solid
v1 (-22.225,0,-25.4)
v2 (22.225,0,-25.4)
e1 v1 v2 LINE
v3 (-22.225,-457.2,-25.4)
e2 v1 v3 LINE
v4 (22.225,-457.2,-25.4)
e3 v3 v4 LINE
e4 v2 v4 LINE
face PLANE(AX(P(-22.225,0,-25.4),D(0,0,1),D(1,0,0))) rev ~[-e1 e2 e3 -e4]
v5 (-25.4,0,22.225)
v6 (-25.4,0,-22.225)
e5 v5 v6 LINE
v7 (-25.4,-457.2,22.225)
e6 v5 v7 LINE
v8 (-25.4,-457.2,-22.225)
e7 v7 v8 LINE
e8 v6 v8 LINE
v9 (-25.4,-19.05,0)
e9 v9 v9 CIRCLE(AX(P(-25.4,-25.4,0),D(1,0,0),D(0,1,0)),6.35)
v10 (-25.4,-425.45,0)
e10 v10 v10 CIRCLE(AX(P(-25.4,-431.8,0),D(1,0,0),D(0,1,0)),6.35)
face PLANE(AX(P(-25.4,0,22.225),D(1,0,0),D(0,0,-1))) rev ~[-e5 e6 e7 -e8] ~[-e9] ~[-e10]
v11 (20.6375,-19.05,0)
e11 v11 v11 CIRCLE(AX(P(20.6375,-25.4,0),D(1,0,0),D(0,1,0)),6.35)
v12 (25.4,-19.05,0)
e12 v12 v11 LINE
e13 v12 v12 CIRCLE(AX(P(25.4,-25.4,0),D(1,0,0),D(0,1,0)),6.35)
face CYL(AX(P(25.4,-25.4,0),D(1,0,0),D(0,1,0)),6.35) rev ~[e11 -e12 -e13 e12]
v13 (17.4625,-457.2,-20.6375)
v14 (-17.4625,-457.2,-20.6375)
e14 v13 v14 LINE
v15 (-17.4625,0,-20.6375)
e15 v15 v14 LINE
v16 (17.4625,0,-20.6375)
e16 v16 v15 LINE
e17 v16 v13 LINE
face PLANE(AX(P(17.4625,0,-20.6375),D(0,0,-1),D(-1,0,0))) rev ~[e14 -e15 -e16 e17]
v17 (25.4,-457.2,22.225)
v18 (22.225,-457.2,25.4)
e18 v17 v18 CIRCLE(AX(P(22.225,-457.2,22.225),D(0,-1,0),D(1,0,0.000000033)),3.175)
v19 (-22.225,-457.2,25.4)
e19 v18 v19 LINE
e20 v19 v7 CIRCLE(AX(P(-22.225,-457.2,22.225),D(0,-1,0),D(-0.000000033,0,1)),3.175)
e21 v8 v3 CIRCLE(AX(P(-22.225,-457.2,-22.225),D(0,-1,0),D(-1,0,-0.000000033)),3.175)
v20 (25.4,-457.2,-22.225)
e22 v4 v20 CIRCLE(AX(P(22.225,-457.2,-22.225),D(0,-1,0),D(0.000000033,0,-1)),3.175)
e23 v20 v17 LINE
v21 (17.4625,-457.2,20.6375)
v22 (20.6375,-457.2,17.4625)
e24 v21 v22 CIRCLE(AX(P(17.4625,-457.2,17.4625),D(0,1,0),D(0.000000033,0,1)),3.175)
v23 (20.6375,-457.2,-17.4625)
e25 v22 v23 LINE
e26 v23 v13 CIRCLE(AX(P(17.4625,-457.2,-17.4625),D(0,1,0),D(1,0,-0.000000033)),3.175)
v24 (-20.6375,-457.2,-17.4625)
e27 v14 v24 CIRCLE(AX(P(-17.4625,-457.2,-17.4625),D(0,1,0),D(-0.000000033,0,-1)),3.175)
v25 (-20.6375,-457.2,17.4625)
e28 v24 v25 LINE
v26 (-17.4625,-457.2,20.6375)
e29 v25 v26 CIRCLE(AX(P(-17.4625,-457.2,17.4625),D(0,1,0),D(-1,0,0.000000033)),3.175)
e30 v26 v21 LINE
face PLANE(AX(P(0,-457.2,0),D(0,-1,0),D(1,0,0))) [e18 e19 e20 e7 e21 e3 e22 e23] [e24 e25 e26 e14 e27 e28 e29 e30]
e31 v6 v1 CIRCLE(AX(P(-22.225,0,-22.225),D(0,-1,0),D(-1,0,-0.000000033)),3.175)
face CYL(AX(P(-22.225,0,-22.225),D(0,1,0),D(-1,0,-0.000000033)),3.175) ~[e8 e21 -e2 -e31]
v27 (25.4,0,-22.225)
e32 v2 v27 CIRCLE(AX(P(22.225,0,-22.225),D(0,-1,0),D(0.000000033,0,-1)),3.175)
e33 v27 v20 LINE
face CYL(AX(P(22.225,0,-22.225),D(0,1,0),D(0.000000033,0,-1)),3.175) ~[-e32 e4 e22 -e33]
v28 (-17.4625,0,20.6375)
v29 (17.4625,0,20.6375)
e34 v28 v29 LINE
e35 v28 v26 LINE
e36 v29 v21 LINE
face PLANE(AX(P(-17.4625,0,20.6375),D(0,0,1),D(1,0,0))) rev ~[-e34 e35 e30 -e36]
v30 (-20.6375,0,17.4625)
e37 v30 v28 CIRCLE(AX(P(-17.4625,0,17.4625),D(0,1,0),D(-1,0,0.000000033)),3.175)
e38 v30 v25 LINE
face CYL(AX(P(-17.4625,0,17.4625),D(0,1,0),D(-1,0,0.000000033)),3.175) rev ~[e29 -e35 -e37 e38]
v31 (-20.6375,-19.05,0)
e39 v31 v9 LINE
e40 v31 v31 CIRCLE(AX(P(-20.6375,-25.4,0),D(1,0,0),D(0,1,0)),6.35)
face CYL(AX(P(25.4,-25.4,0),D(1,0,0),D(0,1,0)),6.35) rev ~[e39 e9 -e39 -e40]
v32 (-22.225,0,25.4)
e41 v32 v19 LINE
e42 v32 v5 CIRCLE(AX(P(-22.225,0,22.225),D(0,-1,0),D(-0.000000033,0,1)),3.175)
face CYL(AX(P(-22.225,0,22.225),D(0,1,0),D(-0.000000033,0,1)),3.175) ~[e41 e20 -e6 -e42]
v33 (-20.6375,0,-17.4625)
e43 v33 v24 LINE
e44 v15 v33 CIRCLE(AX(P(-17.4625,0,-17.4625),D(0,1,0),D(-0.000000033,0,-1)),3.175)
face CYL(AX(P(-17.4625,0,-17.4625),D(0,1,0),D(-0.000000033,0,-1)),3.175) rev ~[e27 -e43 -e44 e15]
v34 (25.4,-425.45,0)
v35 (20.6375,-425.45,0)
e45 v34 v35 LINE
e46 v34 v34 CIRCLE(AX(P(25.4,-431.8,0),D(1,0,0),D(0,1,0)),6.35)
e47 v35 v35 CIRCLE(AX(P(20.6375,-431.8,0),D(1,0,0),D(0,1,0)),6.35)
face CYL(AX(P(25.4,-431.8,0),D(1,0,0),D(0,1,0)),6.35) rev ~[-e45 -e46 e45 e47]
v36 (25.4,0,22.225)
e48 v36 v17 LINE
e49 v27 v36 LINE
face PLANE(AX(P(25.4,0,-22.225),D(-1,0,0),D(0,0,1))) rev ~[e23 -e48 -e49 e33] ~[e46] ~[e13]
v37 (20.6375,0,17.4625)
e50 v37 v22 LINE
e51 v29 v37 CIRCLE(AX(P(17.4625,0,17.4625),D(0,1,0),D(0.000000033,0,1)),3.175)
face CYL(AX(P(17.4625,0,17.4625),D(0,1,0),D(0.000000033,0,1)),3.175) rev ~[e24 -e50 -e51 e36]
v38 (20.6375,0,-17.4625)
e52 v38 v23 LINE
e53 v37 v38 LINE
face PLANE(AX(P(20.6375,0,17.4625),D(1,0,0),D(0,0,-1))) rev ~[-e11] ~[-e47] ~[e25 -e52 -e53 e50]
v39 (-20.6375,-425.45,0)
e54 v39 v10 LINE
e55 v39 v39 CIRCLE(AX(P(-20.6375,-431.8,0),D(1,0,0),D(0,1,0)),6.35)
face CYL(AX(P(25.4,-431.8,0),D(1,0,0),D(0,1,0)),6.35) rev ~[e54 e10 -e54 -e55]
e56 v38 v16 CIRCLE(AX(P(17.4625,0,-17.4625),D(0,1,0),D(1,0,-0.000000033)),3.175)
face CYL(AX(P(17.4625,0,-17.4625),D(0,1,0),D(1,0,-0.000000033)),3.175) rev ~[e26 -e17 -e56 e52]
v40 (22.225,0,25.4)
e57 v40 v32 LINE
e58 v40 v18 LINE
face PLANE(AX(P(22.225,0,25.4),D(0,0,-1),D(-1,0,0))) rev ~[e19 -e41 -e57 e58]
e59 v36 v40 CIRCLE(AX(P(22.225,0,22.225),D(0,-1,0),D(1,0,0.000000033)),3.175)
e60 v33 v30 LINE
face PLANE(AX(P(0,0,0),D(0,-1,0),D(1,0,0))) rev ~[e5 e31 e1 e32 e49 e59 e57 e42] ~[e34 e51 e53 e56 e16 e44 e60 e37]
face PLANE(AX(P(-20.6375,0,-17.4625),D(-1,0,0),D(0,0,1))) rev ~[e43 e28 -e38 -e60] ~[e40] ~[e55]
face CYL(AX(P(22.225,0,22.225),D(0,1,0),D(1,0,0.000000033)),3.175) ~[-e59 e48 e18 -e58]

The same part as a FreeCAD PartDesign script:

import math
import FreeCAD as App
import Part
import Sketcher

V = App.Vector
Q = App.Units.Quantity

doc = App.newDocument("Part")
body = doc.addObject("PartDesign::Body", "Body")

# Sketch on XZ plane
sketch1 = body.newObject("Sketcher::SketchObject", "Sketch")
sketch1.AttachmentSupport = (doc.getObject("XZ_Plane"), [""])
sketch1.MapMode = "FlatFace"
sketch1.addGeometry([
    Part.ArcOfCircle(Part.Circle(V(22.2, 22.2, 0), V(0, 0, 1), 3.2), math.radians(0), math.radians(90)),  # 0
    Part.LineSegment(V(22.2, 25.4, 0), V(-22.2, 25.4, 0)),  # 1
    Part.ArcOfCircle(Part.Circle(V(-22.2, 22.2, 0), V(0, 0, 1), 3.2), math.radians(90), math.radians(180)),  # 2
    Part.LineSegment(V(-25.4, 22.2, 0), V(-25.4, -22.2, 0)),  # 3
    Part.ArcOfCircle(Part.Circle(V(-22.2, -22.2, 0), V(0, 0, 1), 3.2), math.radians(-180), math.radians(-90)),  # 4
    Part.LineSegment(V(-22.2, -25.4, 0), V(22.2, -25.4, 0)),  # 5
    Part.ArcOfCircle(Part.Circle(V(22.2, -22.2, 0), V(0, 0, 1), 3.2), math.radians(-90), math.radians(0)),  # 6
    Part.LineSegment(V(25.4, -22.2, 0), V(25.4, 22.2, 0)),  # 7
    Part.ArcOfCircle(Part.Circle(V(-17.5, 17.5, 0), V(0, 0, 1), 3.2), math.radians(90), math.radians(180)),  # 8
    Part.LineSegment(V(-17.5, 20.6, 0), V(17.5, 20.6, 0)),  # 9
    Part.ArcOfCircle(Part.Circle(V(17.5, 17.5, 0), V(0, 0, 1), 3.2), math.radians(0), math.radians(90)),  # 10
    Part.LineSegment(V(20.6, 17.5, 0), V(20.6, -17.5, 0)),  # 11
    Part.ArcOfCircle(Part.Circle(V(17.5, -17.5, 0), V(0, 0, 1), 3.2), math.radians(-90), math.radians(0)),  # 12
    Part.LineSegment(V(17.5, -20.6, 0), V(-17.5, -20.6, 0)),  # 13
    Part.ArcOfCircle(Part.Circle(V(-17.5, -17.5, 0), V(0, 0, 1), 3.2), math.radians(-180), math.radians(-90)),  # 14
    Part.LineSegment(V(-20.6, -17.5, 0), V(-20.6, 17.5, 0)),  # 15
], False)
sketch1.addConstraint([
    Sketcher.Constraint("Tangent", 0, 2, 1, 1),
    Sketcher.Constraint("Tangent", 1, 2, 2, 1),
    Sketcher.Constraint("Tangent", 2, 2, 3, 1),
    Sketcher.Constraint("Tangent", 3, 2, 4, 1),
    Sketcher.Constraint("Tangent", 4, 2, 5, 1),
    Sketcher.Constraint("Tangent", 5, 2, 6, 1),
    Sketcher.Constraint("Tangent", 6, 2, 7, 1),
    Sketcher.Constraint("Tangent", 7, 2, 0, 1),
    Sketcher.Constraint("Tangent", 8, 1, 9, 1),
    Sketcher.Constraint("Tangent", 9, 2, 10, 2),
    Sketcher.Constraint("Tangent", 10, 1, 11, 1),
    Sketcher.Constraint("Tangent", 11, 2, 12, 2),
    Sketcher.Constraint("Tangent", 12, 1, 13, 1),
    Sketcher.Constraint("Tangent", 13, 2, 14, 2),
    Sketcher.Constraint("Tangent", 14, 1, 15, 1),
    Sketcher.Constraint("Tangent", 15, 2, 8, 2),
    Sketcher.Constraint("Horizontal", 1),
    Sketcher.Constraint("Vertical", 3),
    Sketcher.Constraint("Horizontal", 5),
    Sketcher.Constraint("Vertical", 7),
    Sketcher.Constraint("Horizontal", 9),
    Sketcher.Constraint("Vertical", 11),
    Sketcher.Constraint("Horizontal", 13),
    Sketcher.Constraint("Vertical", 15),
    Sketcher.Constraint("Equal", 0, 2),
    Sketcher.Constraint("Equal", 2, 4),
    Sketcher.Constraint("Equal", 4, 6),
    Sketcher.Constraint("Equal", 6, 8),
    Sketcher.Constraint("Equal", 8, 10),
    Sketcher.Constraint("Equal", 10, 12),
    Sketcher.Constraint("Equal", 12, 14),
    Sketcher.Constraint("Symmetric", 0, 3, 4, 3, -1, 1),
    Sketcher.Constraint("Symmetric", 8, 3, 12, 3, -1, 1),
    Sketcher.Constraint("Equal", 5, 3),
    Sketcher.Constraint("Equal", 13, 11),
    Sketcher.Constraint("DistanceY", -1, 1, 0, 2, Q("1 in")),
    Sketcher.Constraint("Radius", 0, Q("0.125 in")),
    Sketcher.Constraint("DistanceX", 9, 1, 9, 2, Q("1.375 in")),
])
pad1 = body.newObject("PartDesign::Pad", "Pad")
pad1.Profile = sketch1
pad1.Length = Q("18 in")

# Sketch on YZ plane
sketch2 = body.newObject("Sketcher::SketchObject", "Sketch001")
sketch2.AttachmentSupport = (doc.getObject("YZ_Plane"), [""])
sketch2.MapMode = "FlatFace"
sketch2.AttachmentOffset = App.Placement(V(0, 0, 1 * 25.4), App.Rotation())
sketch2.addGeometry([
    Part.Circle(V(-432, 0, 0), V(0, 0, 1), 6),
    Part.Circle(V(-25, 0, 0), V(0, 0, 1), 6),
], False)
sketch2.addConstraint([
    Sketcher.Constraint("Equal", 0, 1),
    Sketcher.Constraint("PointOnObject", 0, 3, -1),
    Sketcher.Constraint("PointOnObject", 1, 3, -1),
    Sketcher.Constraint("Diameter", 0, Q("0.5 in")),
    Sketcher.Constraint("DistanceX", 0, 3, -1, 1, Q("17 in")),
    Sketcher.Constraint("DistanceX", 1, 3, -1, 1, Q("1 in")),
])
pocket1 = body.newObject("PartDesign::Pocket", "Pocket")
pocket1.Profile = sketch2
pocket1.Type = "ThroughAll"

doc.recompute()
